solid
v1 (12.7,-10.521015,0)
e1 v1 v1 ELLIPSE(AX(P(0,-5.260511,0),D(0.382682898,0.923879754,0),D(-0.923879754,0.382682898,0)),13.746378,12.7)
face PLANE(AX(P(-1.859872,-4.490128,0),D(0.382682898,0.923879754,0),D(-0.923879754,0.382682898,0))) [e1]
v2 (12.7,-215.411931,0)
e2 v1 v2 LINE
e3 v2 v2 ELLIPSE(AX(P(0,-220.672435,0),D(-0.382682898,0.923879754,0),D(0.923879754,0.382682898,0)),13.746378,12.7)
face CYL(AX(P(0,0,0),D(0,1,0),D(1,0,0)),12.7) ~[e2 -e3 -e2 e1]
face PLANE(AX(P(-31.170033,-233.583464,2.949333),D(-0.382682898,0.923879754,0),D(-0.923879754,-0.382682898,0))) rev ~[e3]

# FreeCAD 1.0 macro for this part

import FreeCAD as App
import Part
import Sketcher
Q = App.Units.Quantity


def add_polygon(sketch, points):
    """Adds a closed chain of lines whose ends are joined by coincident constraints."""
    first, n = sketch.GeometryCount, len(points)
    for a, b in zip(points, points[1:] + points[:1]):
        sketch.addGeometry(Part.LineSegment(App.Vector(*a, 0), App.Vector(*b, 0)), False)
    for i in range(n):
        sketch.addConstraint(Sketcher.Constraint("Coincident", first + i, 2, first + (i + 1) % n, 1))

doc = App.newDocument("Part")
params = doc.addObject("Spreadsheet::Sheet", "Params")
for row, (alias, value) in enumerate([
    ("sketch1_diameter", "1 in"),
    ("pad1_length", "8.895 in"),
    ("pocket1_length", "1 in"),
    ("pocket2_length", "1 in"),
], start=1):
    params.set(f"A{row}", alias)
    params.set(f"B{row}", "=" + value)
    params.setAlias(f"B{row}", alias)

body = doc.addObject("PartDesign::Body", "Body")

sketch1 = body.newObject("Sketcher::SketchObject", "Sketch")
sketch1.AttachmentSupport = (doc.getObject("XZ_Plane"), [""])
sketch1.MapMode = "FlatFace"
sketch1.addGeometry(Part.Circle(App.Vector(0, 0, 0), App.Vector(0, 0, 1), 13), False)
sketch1.addConstraint([
    Sketcher.Constraint("Coincident", 0, 3, -1, 1),
    Sketcher.Constraint("Diameter", 0, Q("1 in")),
])
sketch1.setExpression("Constraints[1]", "Params.sketch1_diameter")
pad1 = body.newObject("PartDesign::Pad", "Pad")
pad1.Profile = sketch1
pad1.setExpression("Length", "Params.pad1_length")

sketch2 = body.newObject("Sketcher::SketchObject", "Sketch001")
sketch2.Placement = App.Placement(App.Vector(78.019506, -188.35575, 0), App.Rotation(App.Vector(-0.923879754, -0.382682898, 0), App.Vector(0, 0, 1), App.Vector(-0.382682898, 0.923879754, 0), "ZXY"))
add_polygon(sketch2, [(61, 47), (61, -41), (175, -41), (175, 47)])
sketch2.addConstraint([
    Sketcher.Constraint("Vertical", 0),
    Sketcher.Constraint("Horizontal", 1),
    Sketcher.Constraint("Vertical", 2),
    Sketcher.Constraint("Horizontal", 3),
    Sketcher.Constraint("DistanceY", 0, 2, 0, 1, Q("88.5094 mm")),
    Sketcher.Constraint("DistanceX", 1, 1, 1, 2, Q("114.097729 mm")),
    Sketcher.Constraint("DistanceX", -1, 1, 1, 2, Q("175.234742 mm")),
    Sketcher.Constraint("DistanceY", 0, 2, -1, 1, Q("41.305367 mm")),
])
pocket1 = body.newObject("PartDesign::Pocket", "Pocket")
pocket1.Profile = sketch2
pocket1.setExpression("Length", "Params.pocket1_length")

sketch3 = body.newObject("Sketcher::SketchObject", "Sketch002")
sketch3.Placement = App.Placement(App.Vector(-1.859872, -4.490128, 0), App.Rotation(App.Vector(-0.923879754, 0.382682898, 0), App.Vector(0, 0, 1), App.Vector(0.382682898, 0.923879754, 0), "ZXY"))
add_polygon(sketch3, [(-73, 41), (-73, -41), (73, -41), (73, 41)])
sketch3.addConstraint([
    Sketcher.Constraint("Vertical", 0),
    Sketcher.Constraint("Horizontal", 1),
    Sketcher.Constraint("Vertical", 2),
    Sketcher.Constraint("Horizontal", 3),
    Sketcher.Constraint("Symmetric", 0, 2, 2, 2, -1, 1),
    Sketcher.Constraint("DistanceX", 1, 1, 1, 2, Q("145.65833 mm")),
    Sketcher.Constraint("DistanceY", 0, 2, 0, 1, Q("82.475946 mm")),
])
pocket2 = body.newObject("PartDesign::Pocket", "Pocket001")
pocket2.Profile = sketch3
pocket2.setExpression("Length", "Params.pocket2_length")
pocket2.Reversed = True

doc.recompute()
